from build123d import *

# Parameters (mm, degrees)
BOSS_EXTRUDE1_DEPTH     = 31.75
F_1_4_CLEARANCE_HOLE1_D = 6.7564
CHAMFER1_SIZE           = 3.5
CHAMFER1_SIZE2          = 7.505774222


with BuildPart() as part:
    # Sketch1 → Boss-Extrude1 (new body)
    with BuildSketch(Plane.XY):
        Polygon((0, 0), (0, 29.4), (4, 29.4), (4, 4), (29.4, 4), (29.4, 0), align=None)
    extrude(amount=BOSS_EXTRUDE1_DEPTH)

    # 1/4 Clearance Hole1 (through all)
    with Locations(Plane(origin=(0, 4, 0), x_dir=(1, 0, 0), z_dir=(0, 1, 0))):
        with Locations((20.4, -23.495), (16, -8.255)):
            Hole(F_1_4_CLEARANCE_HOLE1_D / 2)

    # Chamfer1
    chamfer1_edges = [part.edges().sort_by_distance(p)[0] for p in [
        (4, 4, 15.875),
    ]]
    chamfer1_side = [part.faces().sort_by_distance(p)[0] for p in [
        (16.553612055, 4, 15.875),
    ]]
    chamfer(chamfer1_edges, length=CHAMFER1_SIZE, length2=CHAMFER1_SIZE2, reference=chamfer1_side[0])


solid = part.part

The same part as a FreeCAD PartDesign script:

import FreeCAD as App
import Part
import Sketcher
from FreeCAD import Vector
Q = App.Units.Quantity


def edges_at(feature, points):
    """Names of the edges that pass closest to the given points."""
    edges = feature.Shape.Edges
    near = lambda p: min(range(len(edges)), key=lambda i: edges[i].distToShape(Part.Vertex(*p))[0])
    return sorted({f"Edge{near(p) + 1}" for p in points})


def add_polygon(sketch, points):
    """Adds a closed chain of lines whose ends are joined by coincident constraints."""
    first, n = sketch.GeometryCount, len(points)
    for a, b in zip(points, points[1:] + points[:1]):
        sketch.addGeometry(Part.LineSegment(App.Vector(*a, 0), App.Vector(*b, 0)), False)
    for i in range(n):
        sketch.addConstraint(Sketcher.Constraint("Coincident", first + i, 2, first + (i + 1) % n, 1))

doc = App.newDocument("Part")
body = doc.addObject("PartDesign::Body", "Body")

# Sketch on XY plane
sketch1 = body.newObject("Sketcher::SketchObject", "Sketch")
sketch1.AttachmentSupport = (doc.getObject("XY_Plane"), [""])
sketch1.MapMode = "FlatFace"
add_polygon(sketch1, [(0, 29.4), (0, 0), (29.4, 0), (29.4, 4), (4, 4), (4, 29.4)])  # lines 0-5
sketch1.addConstraint([
    Sketcher.Constraint("Vertical", 0),
    Sketcher.Constraint("Horizontal", 1),
    Sketcher.Constraint("Vertical", 2),
    Sketcher.Constraint("Horizontal", 3),
    Sketcher.Constraint("Vertical", 4),
    Sketcher.Constraint("Horizontal", 5),
    Sketcher.Constraint("Coincident", 0, 2, -1, 1),
    Sketcher.Constraint("Equal", 1, 0),
    Sketcher.Constraint("Equal", 5, 2),
    Sketcher.Constraint("DistanceX", 5, 2, 5, 1, Q("4 mm")),
    Sketcher.Constraint("DistanceX", 1, 1, 1, 2, Q("29.4 mm")),
])
pad1 = body.newObject("PartDesign::Pad", "Pad")
pad1.Profile = sketch1
pad1.Length = 31.75

# Sketch on XZ plane
sketch2 = body.newObject("Sketcher::SketchObject", "Sketch001")
sketch2.AttachmentSupport = (doc.getObject("XZ_Plane"), [""])
sketch2.MapMode = "FlatFace"
sketch2.AttachmentOffset = App.Placement(Vector(0, 0, -4), App.Rotation())
sketch2.addGeometry([
    Part.Circle(Vector(20.4, 23.5, 0), Vector(0, 0, 1), 3.4),
    Part.Circle(Vector(16, 8.3, 0), Vector(0, 0, 1), 3.4),
], False)
sketch2.addConstraint([
    Sketcher.Constraint("Equal", 0, 1),
    Sketcher.Constraint("DistanceX", -1, 1, 1, 3, Q("16 mm")),
    Sketcher.Constraint("Diameter", 0, Q("6.7564 mm")),
    Sketcher.Constraint("DistanceX", -1, 1, 0, 3, Q("20.4 mm")),
    Sketcher.Constraint("DistanceY", 1, 3, 0, 3, Q("15.24 mm")),
    Sketcher.Constraint("DistanceY", -1, 1, 0, 3, Q("23.495 mm")),
])
doc.recompute()
hole = body.newObject("PartDesign::Hole", "Hole")
hole.Profile = sketch2
hole.ThreadType = "None"
hole.Diameter = 6.7564
hole.DepthType = "ThroughAll"
hole.Reversed = True
doc.recompute()

chamfer = body.newObject("PartDesign::Chamfer", "Chamfer")
chamfer.Base = (hole, edges_at(hole, [(4, 4, 15.875)]))
chamfer.ChamferType = "Two distances"
chamfer.Size = 3.5
chamfer.Size2 = 7.505774
chamfer.FlipDirection = True

doc.recompute()
